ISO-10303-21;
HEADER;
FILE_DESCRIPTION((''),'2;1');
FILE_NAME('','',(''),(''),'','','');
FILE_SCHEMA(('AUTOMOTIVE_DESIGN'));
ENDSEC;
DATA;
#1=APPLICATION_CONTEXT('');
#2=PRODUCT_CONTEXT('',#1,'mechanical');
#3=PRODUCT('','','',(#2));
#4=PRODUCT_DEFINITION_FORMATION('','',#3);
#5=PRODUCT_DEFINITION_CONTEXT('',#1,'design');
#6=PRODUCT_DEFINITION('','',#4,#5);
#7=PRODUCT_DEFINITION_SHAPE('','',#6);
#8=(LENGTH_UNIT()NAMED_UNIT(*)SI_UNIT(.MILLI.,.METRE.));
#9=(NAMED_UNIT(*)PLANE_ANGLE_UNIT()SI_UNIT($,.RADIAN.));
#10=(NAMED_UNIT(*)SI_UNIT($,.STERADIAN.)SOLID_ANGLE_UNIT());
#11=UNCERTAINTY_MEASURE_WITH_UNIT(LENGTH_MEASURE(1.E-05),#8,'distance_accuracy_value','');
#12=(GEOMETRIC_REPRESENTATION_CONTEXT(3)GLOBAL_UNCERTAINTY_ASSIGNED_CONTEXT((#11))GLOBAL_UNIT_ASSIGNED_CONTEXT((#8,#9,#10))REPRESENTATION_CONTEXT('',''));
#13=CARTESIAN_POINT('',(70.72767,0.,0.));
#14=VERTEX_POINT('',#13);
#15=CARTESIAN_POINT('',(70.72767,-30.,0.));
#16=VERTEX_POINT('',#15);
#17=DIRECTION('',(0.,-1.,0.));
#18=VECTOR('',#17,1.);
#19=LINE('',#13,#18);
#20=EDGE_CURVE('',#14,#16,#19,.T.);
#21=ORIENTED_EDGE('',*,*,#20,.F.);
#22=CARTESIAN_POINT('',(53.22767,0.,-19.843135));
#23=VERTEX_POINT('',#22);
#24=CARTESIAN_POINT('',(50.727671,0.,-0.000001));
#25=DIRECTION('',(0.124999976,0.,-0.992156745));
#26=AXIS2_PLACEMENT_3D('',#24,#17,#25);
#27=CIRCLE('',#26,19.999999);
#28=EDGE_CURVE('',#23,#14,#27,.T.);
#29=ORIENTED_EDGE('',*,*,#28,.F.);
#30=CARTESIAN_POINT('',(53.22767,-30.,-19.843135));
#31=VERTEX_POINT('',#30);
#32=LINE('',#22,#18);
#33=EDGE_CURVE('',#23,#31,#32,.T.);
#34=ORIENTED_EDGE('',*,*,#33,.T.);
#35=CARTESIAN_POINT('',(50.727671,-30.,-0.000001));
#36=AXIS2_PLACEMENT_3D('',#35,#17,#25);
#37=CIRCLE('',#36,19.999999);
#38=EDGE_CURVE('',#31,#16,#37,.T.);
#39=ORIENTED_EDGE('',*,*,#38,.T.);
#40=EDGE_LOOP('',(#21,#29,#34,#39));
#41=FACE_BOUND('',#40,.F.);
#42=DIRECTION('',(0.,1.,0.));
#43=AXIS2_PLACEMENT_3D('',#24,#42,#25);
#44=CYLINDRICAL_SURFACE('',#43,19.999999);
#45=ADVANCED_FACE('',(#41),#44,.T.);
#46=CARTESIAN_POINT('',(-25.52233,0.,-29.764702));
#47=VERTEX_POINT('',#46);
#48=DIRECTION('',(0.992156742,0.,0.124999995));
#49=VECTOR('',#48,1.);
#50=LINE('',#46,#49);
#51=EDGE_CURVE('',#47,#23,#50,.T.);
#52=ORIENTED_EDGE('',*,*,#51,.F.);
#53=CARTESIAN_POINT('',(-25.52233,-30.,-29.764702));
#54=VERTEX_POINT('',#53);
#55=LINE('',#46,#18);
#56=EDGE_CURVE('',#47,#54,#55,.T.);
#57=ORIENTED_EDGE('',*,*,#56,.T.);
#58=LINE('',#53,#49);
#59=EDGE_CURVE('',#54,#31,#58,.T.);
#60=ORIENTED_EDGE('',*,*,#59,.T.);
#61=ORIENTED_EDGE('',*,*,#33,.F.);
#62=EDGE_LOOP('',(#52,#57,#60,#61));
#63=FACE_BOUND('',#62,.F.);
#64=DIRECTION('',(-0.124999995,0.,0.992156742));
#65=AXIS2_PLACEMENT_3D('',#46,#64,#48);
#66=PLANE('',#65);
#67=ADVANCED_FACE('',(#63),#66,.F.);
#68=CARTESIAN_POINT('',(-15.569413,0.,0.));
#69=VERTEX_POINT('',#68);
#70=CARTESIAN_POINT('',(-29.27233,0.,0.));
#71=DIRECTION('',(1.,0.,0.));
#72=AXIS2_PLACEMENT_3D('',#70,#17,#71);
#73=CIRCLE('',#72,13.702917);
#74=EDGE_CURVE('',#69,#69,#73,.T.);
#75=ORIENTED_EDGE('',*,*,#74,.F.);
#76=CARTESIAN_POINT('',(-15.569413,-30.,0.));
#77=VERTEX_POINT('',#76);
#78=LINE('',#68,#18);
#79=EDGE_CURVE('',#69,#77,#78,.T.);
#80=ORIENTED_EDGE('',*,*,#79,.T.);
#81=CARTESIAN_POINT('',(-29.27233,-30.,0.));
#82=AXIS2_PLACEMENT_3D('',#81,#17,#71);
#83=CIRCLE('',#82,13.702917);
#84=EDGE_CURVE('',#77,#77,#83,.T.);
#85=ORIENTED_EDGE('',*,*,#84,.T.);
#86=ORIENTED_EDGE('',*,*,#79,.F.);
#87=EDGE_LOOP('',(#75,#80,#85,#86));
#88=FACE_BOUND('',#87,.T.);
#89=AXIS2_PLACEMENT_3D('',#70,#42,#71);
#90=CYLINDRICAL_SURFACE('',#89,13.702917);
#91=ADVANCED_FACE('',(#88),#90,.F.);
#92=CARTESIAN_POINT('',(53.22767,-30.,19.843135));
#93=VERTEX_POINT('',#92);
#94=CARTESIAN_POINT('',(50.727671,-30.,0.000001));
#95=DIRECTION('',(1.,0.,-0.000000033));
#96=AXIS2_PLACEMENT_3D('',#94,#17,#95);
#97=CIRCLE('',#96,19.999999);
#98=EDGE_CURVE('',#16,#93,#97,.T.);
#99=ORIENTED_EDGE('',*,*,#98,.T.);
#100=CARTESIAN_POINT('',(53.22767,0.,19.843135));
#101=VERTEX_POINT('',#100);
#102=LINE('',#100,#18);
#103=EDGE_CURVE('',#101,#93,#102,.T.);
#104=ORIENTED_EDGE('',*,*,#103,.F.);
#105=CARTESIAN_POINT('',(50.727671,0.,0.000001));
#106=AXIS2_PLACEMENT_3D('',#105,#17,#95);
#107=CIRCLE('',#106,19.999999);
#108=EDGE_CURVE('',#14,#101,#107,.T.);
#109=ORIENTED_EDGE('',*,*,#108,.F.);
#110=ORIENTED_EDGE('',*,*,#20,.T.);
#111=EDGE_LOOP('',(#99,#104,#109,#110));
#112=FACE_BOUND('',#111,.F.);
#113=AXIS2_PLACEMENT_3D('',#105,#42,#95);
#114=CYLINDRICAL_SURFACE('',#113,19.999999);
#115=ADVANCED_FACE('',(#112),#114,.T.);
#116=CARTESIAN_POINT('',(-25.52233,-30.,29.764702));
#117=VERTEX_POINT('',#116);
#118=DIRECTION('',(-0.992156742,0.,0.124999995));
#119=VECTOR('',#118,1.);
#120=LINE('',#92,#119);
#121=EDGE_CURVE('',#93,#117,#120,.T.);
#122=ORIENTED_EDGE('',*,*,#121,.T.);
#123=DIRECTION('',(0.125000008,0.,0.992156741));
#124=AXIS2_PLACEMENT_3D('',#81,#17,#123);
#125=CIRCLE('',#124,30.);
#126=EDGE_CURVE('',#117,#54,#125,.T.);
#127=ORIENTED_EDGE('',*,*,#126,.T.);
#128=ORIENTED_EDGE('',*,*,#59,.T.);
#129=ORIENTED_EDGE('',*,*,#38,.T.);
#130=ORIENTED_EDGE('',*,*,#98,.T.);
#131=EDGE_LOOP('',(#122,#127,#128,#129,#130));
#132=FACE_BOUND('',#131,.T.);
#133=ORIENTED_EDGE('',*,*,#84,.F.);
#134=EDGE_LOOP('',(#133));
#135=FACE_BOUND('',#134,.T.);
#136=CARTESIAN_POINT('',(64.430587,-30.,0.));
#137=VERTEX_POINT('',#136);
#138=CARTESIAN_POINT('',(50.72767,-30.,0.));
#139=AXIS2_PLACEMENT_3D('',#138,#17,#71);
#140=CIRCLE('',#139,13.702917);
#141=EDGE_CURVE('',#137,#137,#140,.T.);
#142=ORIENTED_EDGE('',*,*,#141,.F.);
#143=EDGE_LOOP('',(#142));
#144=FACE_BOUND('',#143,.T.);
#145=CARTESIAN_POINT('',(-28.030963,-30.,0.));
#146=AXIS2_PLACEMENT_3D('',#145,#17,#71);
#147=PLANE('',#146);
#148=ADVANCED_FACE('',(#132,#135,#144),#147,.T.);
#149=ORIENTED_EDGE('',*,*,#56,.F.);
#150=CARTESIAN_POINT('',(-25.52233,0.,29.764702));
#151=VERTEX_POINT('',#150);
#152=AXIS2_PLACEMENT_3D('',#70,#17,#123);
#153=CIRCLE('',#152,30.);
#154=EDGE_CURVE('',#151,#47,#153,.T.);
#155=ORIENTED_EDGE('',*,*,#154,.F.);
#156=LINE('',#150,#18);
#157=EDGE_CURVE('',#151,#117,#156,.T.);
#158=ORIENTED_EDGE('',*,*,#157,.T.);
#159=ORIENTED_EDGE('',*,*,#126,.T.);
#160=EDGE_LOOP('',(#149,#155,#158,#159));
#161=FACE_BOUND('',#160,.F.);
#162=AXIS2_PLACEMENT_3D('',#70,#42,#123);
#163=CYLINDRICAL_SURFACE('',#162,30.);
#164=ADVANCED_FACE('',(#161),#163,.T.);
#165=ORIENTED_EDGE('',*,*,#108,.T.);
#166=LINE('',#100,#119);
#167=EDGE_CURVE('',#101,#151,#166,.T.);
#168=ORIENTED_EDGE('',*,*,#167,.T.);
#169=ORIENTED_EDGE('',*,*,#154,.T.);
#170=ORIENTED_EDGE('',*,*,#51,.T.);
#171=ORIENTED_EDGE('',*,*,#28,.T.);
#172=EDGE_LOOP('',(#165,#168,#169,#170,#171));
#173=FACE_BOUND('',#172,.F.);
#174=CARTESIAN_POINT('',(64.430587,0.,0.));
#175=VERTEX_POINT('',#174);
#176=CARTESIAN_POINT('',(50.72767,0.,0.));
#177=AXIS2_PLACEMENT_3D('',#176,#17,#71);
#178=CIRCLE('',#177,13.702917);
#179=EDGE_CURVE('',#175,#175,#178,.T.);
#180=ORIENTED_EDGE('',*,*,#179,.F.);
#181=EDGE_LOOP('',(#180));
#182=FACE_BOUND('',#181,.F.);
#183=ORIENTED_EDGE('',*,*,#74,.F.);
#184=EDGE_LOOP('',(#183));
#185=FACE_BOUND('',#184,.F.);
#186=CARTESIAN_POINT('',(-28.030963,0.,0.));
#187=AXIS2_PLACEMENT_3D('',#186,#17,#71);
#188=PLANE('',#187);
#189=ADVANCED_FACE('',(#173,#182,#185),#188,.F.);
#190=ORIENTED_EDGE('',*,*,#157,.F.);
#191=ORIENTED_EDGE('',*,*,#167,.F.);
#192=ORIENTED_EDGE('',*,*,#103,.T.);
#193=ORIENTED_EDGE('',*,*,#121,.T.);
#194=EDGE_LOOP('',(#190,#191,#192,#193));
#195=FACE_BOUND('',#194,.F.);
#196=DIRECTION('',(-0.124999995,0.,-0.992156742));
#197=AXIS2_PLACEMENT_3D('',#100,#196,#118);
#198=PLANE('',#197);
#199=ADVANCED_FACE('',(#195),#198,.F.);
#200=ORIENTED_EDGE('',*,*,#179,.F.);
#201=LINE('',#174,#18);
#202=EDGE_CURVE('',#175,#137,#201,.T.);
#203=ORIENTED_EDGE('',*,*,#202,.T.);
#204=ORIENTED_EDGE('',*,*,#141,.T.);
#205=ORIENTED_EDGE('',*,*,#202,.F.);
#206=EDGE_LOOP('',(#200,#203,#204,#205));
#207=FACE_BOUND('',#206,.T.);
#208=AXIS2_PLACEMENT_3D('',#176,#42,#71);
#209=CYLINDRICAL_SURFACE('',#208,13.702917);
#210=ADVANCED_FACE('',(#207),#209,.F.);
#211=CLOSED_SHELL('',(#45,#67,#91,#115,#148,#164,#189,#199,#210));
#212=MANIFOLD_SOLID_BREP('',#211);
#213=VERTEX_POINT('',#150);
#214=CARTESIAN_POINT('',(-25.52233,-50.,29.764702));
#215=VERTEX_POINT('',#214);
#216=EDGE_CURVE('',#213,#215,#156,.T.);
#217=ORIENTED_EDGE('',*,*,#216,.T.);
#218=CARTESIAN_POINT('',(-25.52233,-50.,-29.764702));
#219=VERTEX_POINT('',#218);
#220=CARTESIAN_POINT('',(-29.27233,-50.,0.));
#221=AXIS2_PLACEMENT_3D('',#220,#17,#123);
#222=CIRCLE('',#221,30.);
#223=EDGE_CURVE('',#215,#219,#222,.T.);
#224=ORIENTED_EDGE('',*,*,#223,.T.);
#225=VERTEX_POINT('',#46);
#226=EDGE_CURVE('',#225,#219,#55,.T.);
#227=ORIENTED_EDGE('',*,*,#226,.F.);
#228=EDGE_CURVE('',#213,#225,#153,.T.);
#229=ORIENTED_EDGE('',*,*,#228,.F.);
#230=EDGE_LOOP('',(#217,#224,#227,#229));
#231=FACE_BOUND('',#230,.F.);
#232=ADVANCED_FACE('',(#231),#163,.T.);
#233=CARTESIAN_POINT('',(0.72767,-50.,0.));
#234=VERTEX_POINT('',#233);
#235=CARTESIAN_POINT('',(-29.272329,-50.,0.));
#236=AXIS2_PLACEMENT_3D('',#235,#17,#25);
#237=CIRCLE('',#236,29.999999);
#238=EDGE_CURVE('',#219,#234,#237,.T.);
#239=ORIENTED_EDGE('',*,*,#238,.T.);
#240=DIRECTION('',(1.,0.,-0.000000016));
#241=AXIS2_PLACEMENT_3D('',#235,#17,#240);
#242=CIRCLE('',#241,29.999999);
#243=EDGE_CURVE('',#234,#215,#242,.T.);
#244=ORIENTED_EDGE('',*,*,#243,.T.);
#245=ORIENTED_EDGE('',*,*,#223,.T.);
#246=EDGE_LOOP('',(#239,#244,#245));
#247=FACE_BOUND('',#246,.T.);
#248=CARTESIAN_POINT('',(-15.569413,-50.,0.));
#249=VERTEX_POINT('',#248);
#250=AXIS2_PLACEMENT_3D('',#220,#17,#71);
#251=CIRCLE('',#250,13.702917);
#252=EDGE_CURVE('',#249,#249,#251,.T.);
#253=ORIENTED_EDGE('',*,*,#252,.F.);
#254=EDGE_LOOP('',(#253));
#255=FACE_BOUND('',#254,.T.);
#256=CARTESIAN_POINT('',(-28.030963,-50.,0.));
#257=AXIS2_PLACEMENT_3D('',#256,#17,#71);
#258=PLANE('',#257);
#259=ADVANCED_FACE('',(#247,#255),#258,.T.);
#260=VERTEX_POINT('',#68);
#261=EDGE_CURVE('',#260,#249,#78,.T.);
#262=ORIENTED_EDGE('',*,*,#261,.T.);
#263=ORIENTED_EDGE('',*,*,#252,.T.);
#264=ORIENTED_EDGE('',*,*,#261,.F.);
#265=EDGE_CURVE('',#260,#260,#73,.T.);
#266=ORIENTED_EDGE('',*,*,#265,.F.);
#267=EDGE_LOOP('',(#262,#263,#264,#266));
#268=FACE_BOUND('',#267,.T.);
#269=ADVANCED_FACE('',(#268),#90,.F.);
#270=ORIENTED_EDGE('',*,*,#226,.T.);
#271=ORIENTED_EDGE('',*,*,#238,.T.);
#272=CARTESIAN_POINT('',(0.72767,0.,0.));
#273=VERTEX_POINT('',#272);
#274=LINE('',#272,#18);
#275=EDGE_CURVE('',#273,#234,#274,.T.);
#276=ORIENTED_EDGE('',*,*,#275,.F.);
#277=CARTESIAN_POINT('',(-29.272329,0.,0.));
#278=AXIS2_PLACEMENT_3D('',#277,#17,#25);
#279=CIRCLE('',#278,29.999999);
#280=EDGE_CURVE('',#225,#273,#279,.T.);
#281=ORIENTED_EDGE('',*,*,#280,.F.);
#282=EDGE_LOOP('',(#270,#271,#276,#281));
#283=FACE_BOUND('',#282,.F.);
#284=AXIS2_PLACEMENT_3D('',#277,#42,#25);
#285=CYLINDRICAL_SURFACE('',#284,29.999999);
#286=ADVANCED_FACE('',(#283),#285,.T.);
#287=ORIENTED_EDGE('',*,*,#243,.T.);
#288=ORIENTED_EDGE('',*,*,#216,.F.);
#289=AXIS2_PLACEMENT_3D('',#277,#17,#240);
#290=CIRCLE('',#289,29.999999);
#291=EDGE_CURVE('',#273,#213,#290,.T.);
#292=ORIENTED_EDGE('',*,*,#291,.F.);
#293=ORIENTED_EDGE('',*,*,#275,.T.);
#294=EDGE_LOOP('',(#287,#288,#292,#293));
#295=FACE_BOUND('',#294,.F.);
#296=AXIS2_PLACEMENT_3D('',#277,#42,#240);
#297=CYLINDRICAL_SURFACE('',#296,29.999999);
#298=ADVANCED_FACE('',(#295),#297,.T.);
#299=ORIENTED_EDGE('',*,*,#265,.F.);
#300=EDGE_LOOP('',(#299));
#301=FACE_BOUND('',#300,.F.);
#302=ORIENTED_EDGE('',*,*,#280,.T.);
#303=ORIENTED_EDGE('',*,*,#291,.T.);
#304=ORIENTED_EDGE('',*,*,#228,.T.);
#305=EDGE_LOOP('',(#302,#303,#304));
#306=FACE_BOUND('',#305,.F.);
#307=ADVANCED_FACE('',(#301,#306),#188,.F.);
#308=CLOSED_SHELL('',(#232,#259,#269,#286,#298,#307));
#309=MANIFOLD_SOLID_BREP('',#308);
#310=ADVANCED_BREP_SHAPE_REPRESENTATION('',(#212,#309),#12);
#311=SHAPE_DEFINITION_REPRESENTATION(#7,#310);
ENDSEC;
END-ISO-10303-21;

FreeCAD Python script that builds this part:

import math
import FreeCAD as App
import Part
import Sketcher
from FreeCAD import Vector
Q = App.Units.Quantity

doc = App.newDocument("Part")
params = doc.addObject("Spreadsheet::Sheet", "Params")
for row, (alias, value) in enumerate([
    ("sketch1_radius", "30 mm"),
    ("sketch1_radius2", "19.999999 mm"),
    ("pad1_length", "30 mm"),
    ("sketch2_radius", "29.999999 mm"),
    ("sketch2_width", "3.749999 mm"),
    ("pad2_length", "50 mm"),
], start=1):
    params.set(f"A{row}", alias)
    params.set(f"B{row}", "=" + value)
    params.setAlias(f"B{row}", alias)

body = doc.addObject("PartDesign::Body", "Body")

# Sketch on XZ plane
sketch1 = body.newObject("Sketcher::SketchObject", "Sketch")
sketch1.AttachmentSupport = (doc.getObject("XZ_Plane"), [""])
sketch1.MapMode = "FlatFace"
sketch1.addGeometry([
    Part.ArcOfCircle(Part.Circle(Vector(-29, 0, 0), Vector(0, 0, 1), 30), math.radians(83), math.radians(277)),  # 0
    Part.LineSegment(Vector(-26, -30, 0), Vector(53, -20, 0)),  # 1
    Part.ArcOfCircle(Part.Circle(Vector(51, 0, 0), Vector(0, 0, 1), 20), math.radians(-83), math.radians(0)),  # 2
    Part.ArcOfCircle(Part.Circle(Vector(51, 0, 0), Vector(0, 0, 1), 20), math.radians(0), math.radians(83)),  # 3
    Part.LineSegment(Vector(53, 20, 0), Vector(-26, 30, 0)),  # 4
    Part.Circle(Vector(-29, 0, 0), Vector(0, 0, 1), 14),  # 5
    Part.Circle(Vector(51, 0, 0), Vector(0, 0, 1), 14),  # 6
], False)
sketch1.addConstraint([
    Sketcher.Constraint("Tangent", 0, 2, 1, 1),
    Sketcher.Constraint("Tangent", 1, 2, 2, 1),
    Sketcher.Constraint("Tangent", 2, 2, 3, 1),
    Sketcher.Constraint("Tangent", 3, 2, 4, 1),
    Sketcher.Constraint("Tangent", 4, 2, 0, 1),
    Sketcher.Constraint("Coincident", 5, 3, 0, 3),
    Sketcher.Constraint("Coincident", 6, 3, 2, 3),
    Sketcher.Constraint("Equal", 2, 3),
    Sketcher.Constraint("Equal", 5, 6),
    Sketcher.Constraint("Symmetric", 1, 2, 3, 2, -1),
    Sketcher.Constraint("PointOnObject", 2, 2, -1),
    Sketcher.Constraint("Radius", 0, Q("30 mm")),
    Sketcher.Constraint("Radius", 2, Q("19.999999 mm")),
    Sketcher.Constraint("DistanceX", 0, 3, 2, 3, Q("80.000001 mm")),
    Sketcher.Constraint("Diameter", 5, Q("27.405834 mm")),
    Sketcher.Constraint("DistanceX", 0, 3, -1, 1, Q("29.27233 mm")),
])
sketch1.setExpression("Constraints[11]", "Params.sketch1_radius")
sketch1.setExpression("Constraints[12]", "Params.sketch1_radius2")
pad1 = body.newObject("PartDesign::Pad", "Pad")
pad1.Profile = sketch1
pad1.setExpression("Length", "Params.pad1_length")
body2 = doc.addObject("PartDesign::Body", "Body001")

# Sketch on XZ plane
sketch2 = body2.newObject("Sketcher::SketchObject", "Sketch001")
sketch2.AttachmentSupport = (doc.getObject("XZ_Plane001"), [""])
sketch2.MapMode = "FlatFace"
sketch2.addGeometry([
    Part.ArcOfCircle(Part.Circle(Vector(-29, 0, 0), Vector(0, 0, 1), 30), math.radians(-83), math.radians(0)),
    Part.ArcOfCircle(Part.Circle(Vector(-29, 0, 0), Vector(0, 0, 1), 30), math.radians(0), math.radians(83)),
    Part.ArcOfCircle(Part.Circle(Vector(-29, 0, 0), Vector(0, 0, 1), 30), math.radians(83), math.radians(277)),
    Part.Circle(Vector(-29, 0, 0), Vector(0, 0, 1), 14),
], False)
sketch2.addConstraint([
    Sketcher.Constraint("Tangent", 0, 2, 1, 1),
    Sketcher.Constraint("Tangent", 1, 2, 2, 1),
    Sketcher.Constraint("Tangent", 2, 2, 0, 1),
    Sketcher.Constraint("Coincident", 3, 3, 0, 3),
    Sketcher.Constraint("Symmetric", 1, 2, 2, 2, -1),
    Sketcher.Constraint("PointOnObject", 0, 2, -1),
    Sketcher.Constraint("Radius", 0, Q("29.999999 mm")),
    Sketcher.Constraint("DistanceX", 1, 3, 1, 2, Q("3.749999 mm")),
    Sketcher.Constraint("Diameter", 3, Q("27.405834 mm")),
    Sketcher.Constraint("DistanceX", 0, 3, -1, 1, Q("29.272329 mm")),
])
sketch2.setExpression("Constraints[6]", "Params.sketch2_radius")
sketch2.setExpression("Constraints[7]", "Params.sketch2_width")
pad2 = body2.newObject("PartDesign::Pad", "Pad001")
pad2.Profile = sketch2
pad2.setExpression("Length", "Params.pad2_length")

doc.recompute()
